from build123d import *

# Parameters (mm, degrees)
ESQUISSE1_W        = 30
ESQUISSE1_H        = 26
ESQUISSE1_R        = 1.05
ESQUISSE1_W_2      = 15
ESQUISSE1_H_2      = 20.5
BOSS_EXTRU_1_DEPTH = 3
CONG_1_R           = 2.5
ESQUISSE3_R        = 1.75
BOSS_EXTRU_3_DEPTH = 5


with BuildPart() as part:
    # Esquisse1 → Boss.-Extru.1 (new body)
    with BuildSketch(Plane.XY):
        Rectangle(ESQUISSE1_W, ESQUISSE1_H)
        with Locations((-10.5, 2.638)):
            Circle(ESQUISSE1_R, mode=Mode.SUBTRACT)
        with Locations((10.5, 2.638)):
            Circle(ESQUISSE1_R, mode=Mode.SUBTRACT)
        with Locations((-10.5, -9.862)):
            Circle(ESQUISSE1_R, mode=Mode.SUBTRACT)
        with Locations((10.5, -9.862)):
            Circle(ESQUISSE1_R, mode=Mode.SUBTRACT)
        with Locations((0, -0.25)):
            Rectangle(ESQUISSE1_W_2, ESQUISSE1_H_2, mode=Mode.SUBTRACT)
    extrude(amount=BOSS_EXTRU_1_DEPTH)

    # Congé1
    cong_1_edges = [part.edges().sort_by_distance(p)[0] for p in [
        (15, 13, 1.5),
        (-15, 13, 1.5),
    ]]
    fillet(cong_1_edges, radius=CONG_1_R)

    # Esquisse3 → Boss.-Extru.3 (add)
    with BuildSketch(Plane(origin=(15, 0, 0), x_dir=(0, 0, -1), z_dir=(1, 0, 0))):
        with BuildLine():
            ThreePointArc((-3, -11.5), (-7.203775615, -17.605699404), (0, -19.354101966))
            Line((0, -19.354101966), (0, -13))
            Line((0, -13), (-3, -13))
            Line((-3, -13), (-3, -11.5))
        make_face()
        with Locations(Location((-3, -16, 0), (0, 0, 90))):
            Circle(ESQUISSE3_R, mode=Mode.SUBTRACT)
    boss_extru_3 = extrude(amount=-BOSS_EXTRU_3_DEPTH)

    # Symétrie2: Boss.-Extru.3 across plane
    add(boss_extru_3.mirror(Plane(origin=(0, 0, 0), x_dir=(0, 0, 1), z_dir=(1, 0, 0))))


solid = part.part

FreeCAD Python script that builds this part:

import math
import FreeCAD as App
import Part
import Sketcher
from FreeCAD import Vector
Q = App.Units.Quantity


def edges_at(feature, points):
    """Names of the edges that pass closest to the given points."""
    edges = feature.Shape.Edges
    near = lambda p: min(range(len(edges)), key=lambda i: edges[i].distToShape(Part.Vertex(*p))[0])
    return sorted({f"Edge{near(p) + 1}" for p in points})

doc = App.newDocument("Part")
body = doc.addObject("PartDesign::Body", "Body")

# Sketch on XY plane
sketch1 = body.newObject("Sketcher::SketchObject", "Sketch")
sketch1.AttachmentSupport = (doc.getObject("XY_Plane"), [""])
sketch1.MapMode = "FlatFace"
sketch1.addGeometry(Part.LineSegment(Vector(-15, 13, 0), Vector(-15, -13, 0)), False)
sketch1.addGeometry(Part.LineSegment(Vector(-15, -13, 0), Vector(15, -13, 0)), False)
sketch1.addGeometry(Part.LineSegment(Vector(15, -13, 0), Vector(15, 13, 0)), False)
sketch1.addGeometry(Part.LineSegment(Vector(15, 13, 0), Vector(-15, 13, 0)), False)
sketch1.addGeometry(Part.Circle(Vector(-10.5, -9.9, 0), Vector(0, 0, 1), 1.1), False)
sketch1.addGeometry(Part.Circle(Vector(10.5, -9.9, 0), Vector(0, 0, 1), 1.1), False)
sketch1.addGeometry(Part.Circle(Vector(-10.5, 2.6, 0), Vector(0, 0, 1), 1.1), False)
sketch1.addGeometry(Part.LineSegment(Vector(7.5, -10.5, 0), Vector(-7.5, -10.5, 0)), False)
sketch1.addGeometry(Part.LineSegment(Vector(-7.5, -10.5, 0), Vector(-7.5, 10, 0)), False)
sketch1.addGeometry(Part.LineSegment(Vector(-7.5, 10, 0), Vector(7.5, 10, 0)), False)
sketch1.addGeometry(Part.LineSegment(Vector(7.5, 10, 0), Vector(7.5, -10.5, 0)), False)
sketch1.addGeometry(Part.Circle(Vector(10.5, 2.6, 0), Vector(0, 0, 1), 1.1), False)
sketch1.addConstraint(Sketcher.Constraint("Coincident", 0, 2, 1, 1))
sketch1.addConstraint(Sketcher.Constraint("Coincident", 1, 2, 2, 1))
sketch1.addConstraint(Sketcher.Constraint("Coincident", 2, 2, 3, 1))
sketch1.addConstraint(Sketcher.Constraint("Coincident", 3, 2, 0, 1))
sketch1.addConstraint(Sketcher.Constraint("Coincident", 7, 2, 8, 1))
sketch1.addConstraint(Sketcher.Constraint("Coincident", 8, 2, 9, 1))
sketch1.addConstraint(Sketcher.Constraint("Coincident", 9, 2, 10, 1))
sketch1.addConstraint(Sketcher.Constraint("Coincident", 10, 2, 7, 1))
sketch1.addConstraint(Sketcher.Constraint("Vertical", 0))
sketch1.addConstraint(Sketcher.Constraint("Horizontal", 1))
sketch1.addConstraint(Sketcher.Constraint("Vertical", 2))
sketch1.addConstraint(Sketcher.Constraint("Horizontal", 3))
sketch1.addConstraint(Sketcher.Constraint("Horizontal", 7))
sketch1.addConstraint(Sketcher.Constraint("Vertical", 8))
sketch1.addConstraint(Sketcher.Constraint("Horizontal", 9))
sketch1.addConstraint(Sketcher.Constraint("Vertical", 10))
sketch1.addConstraint(Sketcher.Constraint("Equal", 4, 5))
sketch1.addConstraint(Sketcher.Constraint("Equal", 5, 6))
sketch1.addConstraint(Sketcher.Constraint("Equal", 6, 11))
sketch1.addConstraint(Sketcher.Constraint("Symmetric", 0, 2, 2, 2, -1, 1))
sketch1.addConstraint(Sketcher.Constraint("Symmetric", 4, 3, 5, 3, -2))
sketch1.addConstraint(Sketcher.Constraint("Symmetric", 6, 3, 11, 3, -2))
sketch1.addConstraint(Sketcher.Constraint("Vertical", 4, 3, 6, 3))
sketch1.addConstraint(Sketcher.Constraint("Diameter", 4, Q("2.1 mm")))
sketch1.addConstraint(Sketcher.Constraint("DistanceX", 1, 1, 1, 2, Q("30 mm")))
sketch1.addConstraint(Sketcher.Constraint("DistanceX", 7, 2, 7, 1, Q("15 mm")))
sketch1.addConstraint(Sketcher.Constraint("DistanceY", 0, 2, 0, 1, Q("26 mm")))
sketch1.addConstraint(Sketcher.Constraint("DistanceY", 8, 1, 8, 2, Q("20.5 mm")))
sketch1.addConstraint(Sketcher.Constraint("DistanceY", -1, 1, 8, 2, Q("10 mm")))
sketch1.addConstraint(Sketcher.Constraint("DistanceX", 4, 3, 5, 3, Q("21 mm")))
sketch1.addConstraint(Sketcher.Constraint("DistanceX", 4, 3, 7, 2, Q("3 mm")))
sketch1.addConstraint(Sketcher.Constraint("DistanceY", 4, 3, 6, 3, Q("12.5 mm")))
sketch1.addConstraint(Sketcher.Constraint("DistanceY", 4, 3, -1, 1, Q("9.862 mm")))
pad1 = body.newObject("PartDesign::Pad", "Pad")
pad1.Profile = sketch1
pad1.Length = 3
doc.recompute()

fillet = body.newObject("PartDesign::Fillet", "Fillet")
fillet.Base = (pad1, edges_at(pad1, [(15, 13, 1.5), (-15, 13, 1.5)]))
fillet.Radius = 2.5

# Sketch on YZ plane
sketch2 = body.newObject("Sketcher::SketchObject", "Sketch001")
sketch2.AttachmentSupport = (doc.getObject("YZ_Plane"), [""])
sketch2.MapMode = "FlatFace"
sketch2.AttachmentOffset = App.Placement(Vector(0, 0, 15), App.Rotation())
sketch2.addGeometry(Part.ArcOfCircle(Part.Circle(Vector(-16, 3, 0), Vector(0, 0, 1), 4.5), math.radians(0), math.radians(222)), False)
sketch2.addGeometry(Part.LineSegment(Vector(-19.4, 0, 0), Vector(-13, 0, 0)), False)
sketch2.addGeometry(Part.LineSegment(Vector(-13, 0, 0), Vector(-13, 3, 0)), False)
sketch2.addGeometry(Part.LineSegment(Vector(-13, 3, 0), Vector(-11.5, 3, 0)), False)
sketch2.addGeometry(Part.Circle(Vector(-16, 3, 0), Vector(0, 0, 1), 1.8), False)
sketch2.addConstraint(Sketcher.Constraint("Coincident", 0, 2, 1, 1))
sketch2.addConstraint(Sketcher.Constraint("Coincident", 1, 2, 2, 1))
sketch2.addConstraint(Sketcher.Constraint("Coincident", 2, 2, 3, 1))
sketch2.addConstraint(Sketcher.Constraint("Coincident", 3, 2, 0, 1))
sketch2.addConstraint(Sketcher.Constraint("Horizontal", 1))
sketch2.addConstraint(Sketcher.Constraint("Vertical", 2))
sketch2.addConstraint(Sketcher.Constraint("Horizontal", 3))
sketch2.addConstraint(Sketcher.Constraint("Coincident", 4, 3, 0, 3))
sketch2.addConstraint(Sketcher.Constraint("PointOnObject", 0, 2, -1))
sketch2.addConstraint(Sketcher.Constraint("Horizontal", 4, 3, 2, 2))
sketch2.addConstraint(Sketcher.Constraint("Diameter", 4, Q("3.5 mm")))
sketch2.addConstraint(Sketcher.Constraint("Radius", 0, Q("4.5 mm")))
sketch2.addConstraint(Sketcher.Constraint("DistanceY", 2, 1, 2, 2, Q("3 mm")))
sketch2.addConstraint(Sketcher.Constraint("DistanceX", 3, 1, 3, 2, Q("1.5 mm")))
sketch2.addConstraint(Sketcher.Constraint("DistanceX", 0, 3, -1, 1, Q("16 mm")))
pad2 = body.newObject("PartDesign::Pad", "Pad001")
pad2.Profile = sketch2
pad2.Length = 5
pad2.Reversed = True
doc.recompute()

mirrored = body.newObject("PartDesign::Mirrored", "Mirrored")
mirrored.Originals = [pad2]
mirrored.MirrorPlane = (doc.getObject("YZ_Plane"), [""])
body.Tip = mirrored

doc.recompute()
